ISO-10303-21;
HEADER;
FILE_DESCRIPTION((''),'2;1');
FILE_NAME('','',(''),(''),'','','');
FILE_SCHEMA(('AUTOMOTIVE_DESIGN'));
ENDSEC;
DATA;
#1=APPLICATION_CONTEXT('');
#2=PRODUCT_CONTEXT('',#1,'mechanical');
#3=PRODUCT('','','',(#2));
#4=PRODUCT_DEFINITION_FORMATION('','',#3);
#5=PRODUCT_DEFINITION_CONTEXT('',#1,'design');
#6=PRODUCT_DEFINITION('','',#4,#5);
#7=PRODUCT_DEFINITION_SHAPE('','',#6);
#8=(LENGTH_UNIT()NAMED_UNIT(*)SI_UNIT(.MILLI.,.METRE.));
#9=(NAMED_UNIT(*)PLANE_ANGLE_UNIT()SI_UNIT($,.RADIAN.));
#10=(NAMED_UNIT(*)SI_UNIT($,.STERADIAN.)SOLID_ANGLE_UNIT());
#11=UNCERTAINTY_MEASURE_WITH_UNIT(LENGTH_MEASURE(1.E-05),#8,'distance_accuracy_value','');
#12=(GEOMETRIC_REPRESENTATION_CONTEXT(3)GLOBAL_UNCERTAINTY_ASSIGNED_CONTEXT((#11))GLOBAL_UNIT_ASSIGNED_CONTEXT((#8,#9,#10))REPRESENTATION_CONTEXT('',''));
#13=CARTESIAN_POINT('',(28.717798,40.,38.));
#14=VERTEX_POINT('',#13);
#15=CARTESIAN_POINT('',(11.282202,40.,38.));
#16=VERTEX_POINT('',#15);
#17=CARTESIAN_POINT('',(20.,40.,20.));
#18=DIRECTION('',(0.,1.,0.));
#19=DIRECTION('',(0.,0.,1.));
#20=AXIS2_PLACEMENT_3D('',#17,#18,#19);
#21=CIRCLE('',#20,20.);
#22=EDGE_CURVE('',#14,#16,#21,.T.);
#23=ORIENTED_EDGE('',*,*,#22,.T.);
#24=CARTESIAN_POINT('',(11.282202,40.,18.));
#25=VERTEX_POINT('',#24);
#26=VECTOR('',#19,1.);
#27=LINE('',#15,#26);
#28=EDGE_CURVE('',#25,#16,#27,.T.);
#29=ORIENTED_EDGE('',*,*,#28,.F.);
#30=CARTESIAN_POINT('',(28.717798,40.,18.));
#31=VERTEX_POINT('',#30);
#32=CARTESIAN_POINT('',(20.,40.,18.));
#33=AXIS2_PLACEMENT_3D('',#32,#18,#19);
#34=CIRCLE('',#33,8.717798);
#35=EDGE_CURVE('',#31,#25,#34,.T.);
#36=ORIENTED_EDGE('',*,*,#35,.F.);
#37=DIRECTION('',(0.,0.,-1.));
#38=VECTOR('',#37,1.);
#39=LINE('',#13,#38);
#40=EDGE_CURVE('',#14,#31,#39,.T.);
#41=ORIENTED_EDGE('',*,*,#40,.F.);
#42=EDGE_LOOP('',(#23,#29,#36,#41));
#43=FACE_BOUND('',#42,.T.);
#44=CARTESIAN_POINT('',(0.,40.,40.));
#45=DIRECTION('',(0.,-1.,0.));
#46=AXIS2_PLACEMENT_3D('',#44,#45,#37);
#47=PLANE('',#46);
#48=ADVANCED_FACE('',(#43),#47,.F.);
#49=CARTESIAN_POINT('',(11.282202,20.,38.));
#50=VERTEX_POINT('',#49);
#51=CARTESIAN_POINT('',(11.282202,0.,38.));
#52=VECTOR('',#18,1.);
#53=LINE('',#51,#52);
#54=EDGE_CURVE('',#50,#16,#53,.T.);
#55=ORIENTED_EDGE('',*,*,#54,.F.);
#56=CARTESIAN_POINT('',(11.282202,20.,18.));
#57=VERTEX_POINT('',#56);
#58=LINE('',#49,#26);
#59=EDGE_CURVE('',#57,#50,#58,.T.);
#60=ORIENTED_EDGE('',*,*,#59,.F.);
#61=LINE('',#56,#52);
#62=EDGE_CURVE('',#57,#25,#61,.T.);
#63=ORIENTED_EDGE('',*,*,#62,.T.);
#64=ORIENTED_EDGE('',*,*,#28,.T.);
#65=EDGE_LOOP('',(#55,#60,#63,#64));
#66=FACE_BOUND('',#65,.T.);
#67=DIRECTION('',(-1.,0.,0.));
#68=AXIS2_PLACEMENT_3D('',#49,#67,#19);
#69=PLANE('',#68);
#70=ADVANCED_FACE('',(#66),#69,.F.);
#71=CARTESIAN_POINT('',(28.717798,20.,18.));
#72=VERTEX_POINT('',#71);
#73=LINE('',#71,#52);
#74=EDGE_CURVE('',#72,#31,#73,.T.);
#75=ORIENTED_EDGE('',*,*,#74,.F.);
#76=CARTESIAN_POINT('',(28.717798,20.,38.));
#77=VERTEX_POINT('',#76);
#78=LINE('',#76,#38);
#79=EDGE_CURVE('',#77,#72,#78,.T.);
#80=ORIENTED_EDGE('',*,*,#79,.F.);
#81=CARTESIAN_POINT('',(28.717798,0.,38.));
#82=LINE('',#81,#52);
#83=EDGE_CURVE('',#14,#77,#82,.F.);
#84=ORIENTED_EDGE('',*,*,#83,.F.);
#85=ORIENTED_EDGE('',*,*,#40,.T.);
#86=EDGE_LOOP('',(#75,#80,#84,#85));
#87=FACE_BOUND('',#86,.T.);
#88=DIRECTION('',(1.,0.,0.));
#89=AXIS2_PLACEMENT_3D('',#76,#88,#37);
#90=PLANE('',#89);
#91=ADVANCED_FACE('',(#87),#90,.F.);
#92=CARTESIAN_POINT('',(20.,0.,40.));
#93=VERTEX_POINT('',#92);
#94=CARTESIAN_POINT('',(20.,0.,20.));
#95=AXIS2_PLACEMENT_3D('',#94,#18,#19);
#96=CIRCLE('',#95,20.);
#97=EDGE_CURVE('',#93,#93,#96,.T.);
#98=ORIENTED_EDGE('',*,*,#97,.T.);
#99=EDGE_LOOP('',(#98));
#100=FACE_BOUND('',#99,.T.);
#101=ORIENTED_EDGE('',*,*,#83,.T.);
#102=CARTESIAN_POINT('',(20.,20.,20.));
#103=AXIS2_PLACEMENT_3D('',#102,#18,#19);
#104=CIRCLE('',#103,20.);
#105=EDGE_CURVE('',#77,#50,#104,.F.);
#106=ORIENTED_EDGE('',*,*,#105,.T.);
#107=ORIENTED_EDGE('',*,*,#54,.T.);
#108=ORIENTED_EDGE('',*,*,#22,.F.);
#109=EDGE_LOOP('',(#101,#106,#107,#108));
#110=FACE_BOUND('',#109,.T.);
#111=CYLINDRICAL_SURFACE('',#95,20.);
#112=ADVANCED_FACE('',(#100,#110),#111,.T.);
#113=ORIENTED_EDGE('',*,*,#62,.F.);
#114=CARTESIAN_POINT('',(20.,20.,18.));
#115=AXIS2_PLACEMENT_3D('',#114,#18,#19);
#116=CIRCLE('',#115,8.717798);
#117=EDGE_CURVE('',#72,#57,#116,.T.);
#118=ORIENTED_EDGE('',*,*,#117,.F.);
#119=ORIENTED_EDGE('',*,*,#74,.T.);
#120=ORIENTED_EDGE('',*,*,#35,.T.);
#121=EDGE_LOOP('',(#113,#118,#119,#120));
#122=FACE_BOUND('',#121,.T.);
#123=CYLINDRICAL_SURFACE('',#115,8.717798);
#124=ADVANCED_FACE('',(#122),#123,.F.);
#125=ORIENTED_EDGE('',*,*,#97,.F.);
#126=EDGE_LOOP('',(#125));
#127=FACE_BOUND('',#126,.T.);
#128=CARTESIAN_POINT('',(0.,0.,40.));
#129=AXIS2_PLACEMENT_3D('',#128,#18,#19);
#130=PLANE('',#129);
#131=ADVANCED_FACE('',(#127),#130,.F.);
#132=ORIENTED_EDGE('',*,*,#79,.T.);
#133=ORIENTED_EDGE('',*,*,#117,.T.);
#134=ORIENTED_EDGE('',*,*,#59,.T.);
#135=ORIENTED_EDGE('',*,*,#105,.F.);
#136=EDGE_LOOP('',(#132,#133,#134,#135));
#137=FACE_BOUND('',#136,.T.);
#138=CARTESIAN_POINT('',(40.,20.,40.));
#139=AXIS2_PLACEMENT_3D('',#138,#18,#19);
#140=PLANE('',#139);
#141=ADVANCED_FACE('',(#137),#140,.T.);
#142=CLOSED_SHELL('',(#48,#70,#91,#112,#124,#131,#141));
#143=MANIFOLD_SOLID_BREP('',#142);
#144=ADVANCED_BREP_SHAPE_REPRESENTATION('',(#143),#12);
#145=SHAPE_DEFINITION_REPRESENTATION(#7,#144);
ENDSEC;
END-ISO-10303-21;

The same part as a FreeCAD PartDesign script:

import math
import FreeCAD as App
import Part
import Sketcher
Q = App.Units.Quantity

doc = App.newDocument("Part")
body = doc.addObject("PartDesign::Body", "Body")

sketch1 = body.newObject("Sketcher::SketchObject", "Sketch")
sketch1.AttachmentSupport = (doc.getObject("XY_Plane"), [""])
sketch1.MapMode = "FlatFace"
sketch1.addGeometry(Part.LineSegment(App.Vector(0, 40, 0), App.Vector(0, 0, 0)), False)
sketch1.addGeometry(Part.LineSegment(App.Vector(0, 0, 0), App.Vector(40, 0, 0)), False)
sketch1.addGeometry(Part.LineSegment(App.Vector(40, 0, 0), App.Vector(40, 40, 0)), False)
sketch1.addGeometry(Part.LineSegment(App.Vector(40, 40, 0), App.Vector(0, 40, 0)), False)
sketch1.addConstraint(Sketcher.Constraint("Coincident", 0, 2, 1, 1))
sketch1.addConstraint(Sketcher.Constraint("Coincident", 1, 2, 2, 1))
sketch1.addConstraint(Sketcher.Constraint("Coincident", 2, 2, 3, 1))
sketch1.addConstraint(Sketcher.Constraint("Coincident", 3, 2, 0, 1))
sketch1.addConstraint(Sketcher.Constraint("Vertical", 0))
sketch1.addConstraint(Sketcher.Constraint("Horizontal", 1))
sketch1.addConstraint(Sketcher.Constraint("Vertical", 2))
sketch1.addConstraint(Sketcher.Constraint("Horizontal", 3))
sketch1.addConstraint(Sketcher.Constraint("Coincident", 0, 2, -1, 1))
sketch1.addConstraint(Sketcher.Constraint("Equal", 3, 0))
sketch1.addConstraint(Sketcher.Constraint("DistanceX", 1, 1, 1, 2, Q("40 mm")))
pad1 = body.newObject("PartDesign::Pad", "Pad")
pad1.Profile = sketch1
pad1.Length = 40

sketch2 = body.newObject("Sketcher::SketchObject", "Sketch001")
sketch2.AttachmentSupport = (doc.getObject("XZ_Plane"), [""])
sketch2.MapMode = "FlatFace"
sketch2.AttachmentOffset = App.Placement(App.Vector(0, 0, -40), App.Rotation())
sketch2.addGeometry(Part.LineSegment(App.Vector(20, 0, 0), App.Vector(0, 0, 0)), False)
sketch2.addGeometry(Part.LineSegment(App.Vector(0, 0, 0), App.Vector(0, 20, 0)), False)
sketch2.addGeometry(Part.ArcOfCircle(Part.Circle(App.Vector(20, 20, 0), App.Vector(0, 0, 1), 20), math.radians(180), math.radians(270)), False)
sketch2.addGeometry(Part.LineSegment(App.Vector(40, 0, 0), App.Vector(20, 0, 0)), False)
sketch2.addGeometry(Part.ArcOfCircle(Part.Circle(App.Vector(20, 20, 0), App.Vector(0, 0, 1), 20), math.radians(-90), math.radians(0)), False)
sketch2.addGeometry(Part.LineSegment(App.Vector(40, 20, 0), App.Vector(40, 0, 0)), False)
sketch2.addGeometry(Part.LineSegment(App.Vector(40, 40, 0), App.Vector(40, 20, 0)), False)
sketch2.addGeometry(Part.ArcOfCircle(Part.Circle(App.Vector(20, 20, 0), App.Vector(0, 0, 1), 20), math.radians(0), math.radians(90)), False)
sketch2.addGeometry(Part.LineSegment(App.Vector(20, 40, 0), App.Vector(40, 40, 0)), False)
sketch2.addGeometry(Part.ArcOfCircle(Part.Circle(App.Vector(20, 20, 0), App.Vector(0, 0, 1), 20), math.radians(90), math.radians(180)), False)
sketch2.addGeometry(Part.LineSegment(App.Vector(0, 20, 0), App.Vector(0, 40, 0)), False)
sketch2.addGeometry(Part.LineSegment(App.Vector(0, 40, 0), App.Vector(20, 40, 0)), False)
sketch2.addConstraint(Sketcher.Constraint("Coincident", 0, 2, 1, 1))
sketch2.addConstraint(Sketcher.Constraint("Tangent", 1, 2, 2, 1))
sketch2.addConstraint(Sketcher.Constraint("Tangent", 2, 2, 0, 1))
sketch2.addConstraint(Sketcher.Constraint("Tangent", 3, 2, 4, 1))
sketch2.addConstraint(Sketcher.Constraint("Tangent", 4, 2, 5, 1))
sketch2.addConstraint(Sketcher.Constraint("Coincident", 5, 2, 3, 1))
sketch2.addConstraint(Sketcher.Constraint("Tangent", 6, 2, 7, 1))
sketch2.addConstraint(Sketcher.Constraint("Tangent", 7, 2, 8, 1))
sketch2.addConstraint(Sketcher.Constraint("Coincident", 8, 2, 6, 1))
sketch2.addConstraint(Sketcher.Constraint("Tangent", 9, 2, 10, 1))
sketch2.addConstraint(Sketcher.Constraint("Coincident", 10, 2, 11, 1))
sketch2.addConstraint(Sketcher.Constraint("Tangent", 11, 2, 9, 1))
sketch2.addConstraint(Sketcher.Constraint("Horizontal", 0))
sketch2.addConstraint(Sketcher.Constraint("Vertical", 1))
sketch2.addConstraint(Sketcher.Constraint("Horizontal", 3))
sketch2.addConstraint(Sketcher.Constraint("Vertical", 5))
sketch2.addConstraint(Sketcher.Constraint("Vertical", 6))
sketch2.addConstraint(Sketcher.Constraint("Horizontal", 8))
sketch2.addConstraint(Sketcher.Constraint("Vertical", 10))
sketch2.addConstraint(Sketcher.Constraint("Horizontal", 11))
sketch2.addConstraint(Sketcher.Constraint("Coincident", 0, 2, -1, 1))
sketch2.addConstraint(Sketcher.Constraint("Coincident", 4, 3, 2, 3))
sketch2.addConstraint(Sketcher.Constraint("Coincident", 7, 3, 2, 3))
sketch2.addConstraint(Sketcher.Constraint("Coincident", 9, 3, 2, 3))
sketch2.addConstraint(Sketcher.Constraint("Equal", 2, 4))
sketch2.addConstraint(Sketcher.Constraint("Equal", 4, 7))
sketch2.addConstraint(Sketcher.Constraint("Equal", 7, 9))
sketch2.addConstraint(Sketcher.Constraint("Radius", 2, Q("20 mm")))
pocket1 = body.newObject("PartDesign::Pocket", "Pocket")
pocket1.Profile = sketch2
pocket1.Length = 40
pocket1.Reversed = True

sketch3 = body.newObject("Sketcher::SketchObject", "Sketch002")
sketch3.AttachmentSupport = (doc.getObject("YZ_Plane"), [""])
sketch3.MapMode = "FlatFace"
sketch3.addGeometry(Part.LineSegment(App.Vector(40, 40, 0), App.Vector(20, 40, 0)), False)
sketch3.addGeometry(Part.LineSegment(App.Vector(20, 40, 0), App.Vector(20, 38, 0)), False)
sketch3.addGeometry(Part.LineSegment(App.Vector(20, 38, 0), App.Vector(40, 38, 0)), False)
sketch3.addGeometry(Part.LineSegment(App.Vector(40, 38, 0), App.Vector(40, 40, 0)), False)
sketch3.addConstraint(Sketcher.Constraint("Coincident", 0, 2, 1, 1))
sketch3.addConstraint(Sketcher.Constraint("Coincident", 1, 2, 2, 1))
sketch3.addConstraint(Sketcher.Constraint("Coincident", 2, 2, 3, 1))
sketch3.addConstraint(Sketcher.Constraint("Coincident", 3, 2, 0, 1))
sketch3.addConstraint(Sketcher.Constraint("Horizontal", 0))
sketch3.addConstraint(Sketcher.Constraint("Vertical", 1))
sketch3.addConstraint(Sketcher.Constraint("Horizontal", 2))
sketch3.addConstraint(Sketcher.Constraint("Vertical", 3))
sketch3.addConstraint(Sketcher.Constraint("DistanceX", 0, 2, 0, 1, Q("20 mm")))
sketch3.addConstraint(Sketcher.Constraint("DistanceY", 1, 2, 1, 1, Q("2 mm")))
sketch3.addConstraint(Sketcher.Constraint("DistanceX", -1, 1, 0, 2, Q("20 mm")))
sketch3.addConstraint(Sketcher.Constraint("DistanceY", -1, 1, 0, 2, Q("40 mm")))
pocket2 = body.newObject("PartDesign::Pocket", "Pocket001")
pocket2.Profile = sketch3
pocket2.Length = 40
pocket2.Reversed = True

sketch4 = body.newObject("Sketcher::SketchObject", "Sketch003")
sketch4.AttachmentSupport = (doc.getObject("XZ_Plane"), [""])
sketch4.MapMode = "FlatFace"
sketch4.AttachmentOffset = App.Placement(App.Vector(0, 0, -40), App.Rotation())
sketch4.addGeometry(Part.LineSegment(App.Vector(11, 18, 0), App.Vector(11, 38, 0)), False)
sketch4.addGeometry(Part.LineSegment(App.Vector(11, 38, 0), App.Vector(29, 38, 0)), False)
sketch4.addGeometry(Part.LineSegment(App.Vector(29, 38, 0), App.Vector(29, 18, 0)), False)
sketch4.addGeometry(Part.ArcOfCircle(Part.Circle(App.Vector(20, 18, 0), App.Vector(0, 0, 1), 9), math.radians(180), math.radians(360)), False)
sketch4.addConstraint(Sketcher.Constraint("Coincident", 0, 2, 1, 1))
sketch4.addConstraint(Sketcher.Constraint("Coincident", 1, 2, 2, 1))
sketch4.addConstraint(Sketcher.Constraint("Tangent", 2, 2, 3, 2))
sketch4.addConstraint(Sketcher.Constraint("Tangent", 3, 1, 0, 1))
sketch4.addConstraint(Sketcher.Constraint("Vertical", 0))
sketch4.addConstraint(Sketcher.Constraint("Horizontal", 1))
sketch4.addConstraint(Sketcher.Constraint("Vertical", 2))
sketch4.addConstraint(Sketcher.Constraint("DistanceY", 0, 1, 0, 2, Q("20 mm")))
sketch4.addConstraint(Sketcher.Constraint("DistanceX", -1, 1, 3, 3, Q("20 mm")))
sketch4.addConstraint(Sketcher.Constraint("DistanceY", -1, 1, 3, 3, Q("18 mm")))
sketch4.addConstraint(Sketcher.Constraint("Radius", 3, Q("8.717798 mm")))
pocket3 = body.newObject("PartDesign::Pocket", "Pocket002")
pocket3.Profile = sketch4
pocket3.Length = 20
pocket3.Reversed = True

doc.recompute()
